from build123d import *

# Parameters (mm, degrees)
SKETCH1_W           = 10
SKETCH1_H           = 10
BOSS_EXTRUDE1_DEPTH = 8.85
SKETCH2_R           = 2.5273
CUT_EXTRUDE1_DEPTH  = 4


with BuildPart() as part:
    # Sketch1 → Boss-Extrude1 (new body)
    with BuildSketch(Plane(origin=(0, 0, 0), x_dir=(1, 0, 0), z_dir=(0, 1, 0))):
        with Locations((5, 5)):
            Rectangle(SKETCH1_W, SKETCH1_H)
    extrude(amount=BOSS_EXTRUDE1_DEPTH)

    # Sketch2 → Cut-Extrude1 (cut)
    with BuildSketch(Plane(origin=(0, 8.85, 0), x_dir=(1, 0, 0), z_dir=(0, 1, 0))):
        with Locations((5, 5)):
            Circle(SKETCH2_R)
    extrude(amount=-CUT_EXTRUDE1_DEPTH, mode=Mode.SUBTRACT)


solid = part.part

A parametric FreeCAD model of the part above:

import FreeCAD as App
import Part
import Sketcher

doc = App.newDocument("Part")
body = doc.addObject("PartDesign::Body", "Body")

# Sketch on XZ plane
sketch1 = body.newObject("Sketcher::SketchObject", "Sketch")
sketch1.AttachmentSupport = (doc.getObject("XZ_Plane"), [""])
sketch1.MapMode = "FlatFace"
sketch1.addGeometry([
    Part.LineSegment(App.Vector(0, -10, 0), App.Vector(0, 0, 0)),
    Part.LineSegment(App.Vector(0, 0, 0), App.Vector(10, 0, 0)),
    Part.LineSegment(App.Vector(10, 0, 0), App.Vector(10, -10, 0)),
    Part.LineSegment(App.Vector(10, -10, 0), App.Vector(0, -10, 0)),
], False)
sketch1.addConstraint([
    Sketcher.Constraint("Coincident", 0, 2, 1, 1),
    Sketcher.Constraint("Coincident", 1, 2, 2, 1),
    Sketcher.Constraint("Coincident", 2, 2, 3, 1),
    Sketcher.Constraint("Coincident", 3, 2, 0, 1),
    Sketcher.Constraint("Vertical", 0),
    Sketcher.Constraint("Horizontal", 1),
    Sketcher.Constraint("Vertical", 2),
    Sketcher.Constraint("Horizontal", 3),
    Sketcher.Constraint("Coincident", 0, 2, -1, 1),
    Sketcher.Constraint("Equal", 3, 0),
    Sketcher.Constraint("DistanceX", 1, 1, 1, 2, 10.0),
])
pad1 = body.newObject("PartDesign::Pad", "Pad")
pad1.Profile = sketch1
pad1.Length = 8.85
pad1.Reversed = True

# Sketch on XZ plane
sketch2 = body.newObject("Sketcher::SketchObject", "Sketch001")
sketch2.AttachmentSupport = (doc.getObject("XZ_Plane"), [""])
sketch2.MapMode = "FlatFace"
sketch2.AttachmentOffset = App.Placement(App.Vector(0, 0, -8.85), App.Rotation())
sketch2.addGeometry(Part.Circle(App.Vector(5, -5, 0), App.Vector(0, 0, 1), 2.5), False)
sketch2.addConstraint([
    Sketcher.Constraint("DistanceX", -1, 1, 0, 3, 5.0),
    Sketcher.Constraint("DistanceY", 0, 3, -1, 1, 5.0),
    Sketcher.Constraint("Diameter", 0, 5.0546),
])
pocket1 = body.newObject("PartDesign::Pocket", "Pocket")
pocket1.Profile = sketch2
pocket1.Length = 4
pocket1.Reversed = True

doc.recompute()
